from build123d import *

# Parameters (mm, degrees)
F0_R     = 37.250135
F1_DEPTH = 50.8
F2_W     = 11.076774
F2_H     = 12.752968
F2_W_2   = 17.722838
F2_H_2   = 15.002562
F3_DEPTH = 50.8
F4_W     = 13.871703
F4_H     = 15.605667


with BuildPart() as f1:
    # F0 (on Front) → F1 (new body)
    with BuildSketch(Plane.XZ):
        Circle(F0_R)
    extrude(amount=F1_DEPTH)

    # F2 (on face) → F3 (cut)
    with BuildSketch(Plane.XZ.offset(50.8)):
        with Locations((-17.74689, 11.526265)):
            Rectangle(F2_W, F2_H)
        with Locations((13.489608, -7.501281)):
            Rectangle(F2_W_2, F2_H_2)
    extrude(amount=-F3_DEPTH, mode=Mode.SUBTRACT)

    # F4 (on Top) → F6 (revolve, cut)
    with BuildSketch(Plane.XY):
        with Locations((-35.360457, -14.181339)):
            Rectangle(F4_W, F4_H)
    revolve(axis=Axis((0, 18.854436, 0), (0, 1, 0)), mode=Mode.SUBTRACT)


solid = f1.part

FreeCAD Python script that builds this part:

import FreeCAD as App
import Part
import Sketcher
from FreeCAD import Vector
Q = App.Units.Quantity


def add_polygon(sketch, points):
    """Adds a closed chain of lines whose ends are joined by coincident constraints."""
    first, n = sketch.GeometryCount, len(points)
    for a, b in zip(points, points[1:] + points[:1]):
        sketch.addGeometry(Part.LineSegment(App.Vector(*a, 0), App.Vector(*b, 0)), False)
    for i in range(n):
        sketch.addConstraint(Sketcher.Constraint("Coincident", first + i, 2, first + (i + 1) % n, 1))

doc = App.newDocument("Part")
body = doc.addObject("PartDesign::Body", "Body")

# Sketch on XZ plane
sketch1 = body.newObject("Sketcher::SketchObject", "Sketch")
sketch1.AttachmentSupport = (doc.getObject("XZ_Plane"), [""])
sketch1.MapMode = "FlatFace"
sketch1.addGeometry(Part.Circle(Vector(0, 0, 0), Vector(0, 0, 1), 37), False)
sketch1.addConstraint([
    Sketcher.Constraint("Coincident", 0, 3, -1, 1),
    Sketcher.Constraint("Diameter", 0, 74.50027),
])
pad1 = body.newObject("PartDesign::Pad", "Pad")
pad1.Profile = sketch1
pad1.Length = Q("2 in")

# Sketch on XZ plane
sketch2 = body.newObject("Sketcher::SketchObject", "Sketch001")
sketch2.AttachmentSupport = (doc.getObject("XZ_Plane"), [""])
sketch2.MapMode = "FlatFace"
sketch2.AttachmentOffset = App.Placement(Vector(0, 0, 2 * 25.4), App.Rotation())
add_polygon(sketch2, [(-23, 18), (-23, 5), (-12, 5), (-12, 18)])  # lines 0-3
add_polygon(sketch2, [(5, 0), (5, -15), (22, -15), (22, 0)])  # lines 4-7
sketch2.addConstraint([
    Sketcher.Constraint("Vertical", 0),
    Sketcher.Constraint("Horizontal", 1),
    Sketcher.Constraint("Vertical", 2),
    Sketcher.Constraint("Horizontal", 3),
    Sketcher.Constraint("Vertical", 4),
    Sketcher.Constraint("Horizontal", 5),
    Sketcher.Constraint("Vertical", 6),
    Sketcher.Constraint("Horizontal", 7),
    Sketcher.Constraint("PointOnObject", 6, 2, -1),
    Sketcher.Constraint("DistanceY", 4, 2, 4, 1, 15.002562),
    Sketcher.Constraint("DistanceX", 1, 1, 1, 2, 11.076774),
    Sketcher.Constraint("DistanceX", 5, 1, 5, 2, 17.722838),
    Sketcher.Constraint("DistanceY", 0, 2, 0, 1, 12.752968),
    Sketcher.Constraint("DistanceY", -1, 1, 0, 2, 5.149781),
    Sketcher.Constraint("DistanceX", -1, 1, 4, 2, 4.628189),
    Sketcher.Constraint("DistanceX", 1, 2, 4, 2, 16.836692),
])
pocket1 = body.newObject("PartDesign::Pocket", "Pocket")
pocket1.Profile = sketch2
pocket1.Length = Q("2 in")

# Sketch on XY plane
sketch3 = body.newObject("Sketcher::SketchObject", "Sketch002")
sketch3.AttachmentSupport = (doc.getObject("XY_Plane"), [""])
sketch3.MapMode = "FlatFace"
add_polygon(sketch3, [(-42, -6), (-42, -22), (-28, -22), (-28, -6)])  # lines 0-3
sketch3.addConstraint([
    Sketcher.Constraint("Vertical", 0),
    Sketcher.Constraint("Horizontal", 1),
    Sketcher.Constraint("Vertical", 2),
    Sketcher.Constraint("Horizontal", 3),
    Sketcher.Constraint("DistanceX", 1, 1, 1, 2, 13.871703),
    Sketcher.Constraint("DistanceY", 0, 2, 0, 1, 15.605667),
    Sketcher.Constraint("DistanceX", 0, 2, -1, 1, 42.296309),
    Sketcher.Constraint("DistanceY", 0, 2, -1, 1, 21.984172),
])
groove = body.newObject("PartDesign::Groove", "Groove")
groove.Profile = sketch3
groove.ReferenceAxis = (sketch3, ["V_Axis"])
groove.Angle = 360

doc.recompute()
